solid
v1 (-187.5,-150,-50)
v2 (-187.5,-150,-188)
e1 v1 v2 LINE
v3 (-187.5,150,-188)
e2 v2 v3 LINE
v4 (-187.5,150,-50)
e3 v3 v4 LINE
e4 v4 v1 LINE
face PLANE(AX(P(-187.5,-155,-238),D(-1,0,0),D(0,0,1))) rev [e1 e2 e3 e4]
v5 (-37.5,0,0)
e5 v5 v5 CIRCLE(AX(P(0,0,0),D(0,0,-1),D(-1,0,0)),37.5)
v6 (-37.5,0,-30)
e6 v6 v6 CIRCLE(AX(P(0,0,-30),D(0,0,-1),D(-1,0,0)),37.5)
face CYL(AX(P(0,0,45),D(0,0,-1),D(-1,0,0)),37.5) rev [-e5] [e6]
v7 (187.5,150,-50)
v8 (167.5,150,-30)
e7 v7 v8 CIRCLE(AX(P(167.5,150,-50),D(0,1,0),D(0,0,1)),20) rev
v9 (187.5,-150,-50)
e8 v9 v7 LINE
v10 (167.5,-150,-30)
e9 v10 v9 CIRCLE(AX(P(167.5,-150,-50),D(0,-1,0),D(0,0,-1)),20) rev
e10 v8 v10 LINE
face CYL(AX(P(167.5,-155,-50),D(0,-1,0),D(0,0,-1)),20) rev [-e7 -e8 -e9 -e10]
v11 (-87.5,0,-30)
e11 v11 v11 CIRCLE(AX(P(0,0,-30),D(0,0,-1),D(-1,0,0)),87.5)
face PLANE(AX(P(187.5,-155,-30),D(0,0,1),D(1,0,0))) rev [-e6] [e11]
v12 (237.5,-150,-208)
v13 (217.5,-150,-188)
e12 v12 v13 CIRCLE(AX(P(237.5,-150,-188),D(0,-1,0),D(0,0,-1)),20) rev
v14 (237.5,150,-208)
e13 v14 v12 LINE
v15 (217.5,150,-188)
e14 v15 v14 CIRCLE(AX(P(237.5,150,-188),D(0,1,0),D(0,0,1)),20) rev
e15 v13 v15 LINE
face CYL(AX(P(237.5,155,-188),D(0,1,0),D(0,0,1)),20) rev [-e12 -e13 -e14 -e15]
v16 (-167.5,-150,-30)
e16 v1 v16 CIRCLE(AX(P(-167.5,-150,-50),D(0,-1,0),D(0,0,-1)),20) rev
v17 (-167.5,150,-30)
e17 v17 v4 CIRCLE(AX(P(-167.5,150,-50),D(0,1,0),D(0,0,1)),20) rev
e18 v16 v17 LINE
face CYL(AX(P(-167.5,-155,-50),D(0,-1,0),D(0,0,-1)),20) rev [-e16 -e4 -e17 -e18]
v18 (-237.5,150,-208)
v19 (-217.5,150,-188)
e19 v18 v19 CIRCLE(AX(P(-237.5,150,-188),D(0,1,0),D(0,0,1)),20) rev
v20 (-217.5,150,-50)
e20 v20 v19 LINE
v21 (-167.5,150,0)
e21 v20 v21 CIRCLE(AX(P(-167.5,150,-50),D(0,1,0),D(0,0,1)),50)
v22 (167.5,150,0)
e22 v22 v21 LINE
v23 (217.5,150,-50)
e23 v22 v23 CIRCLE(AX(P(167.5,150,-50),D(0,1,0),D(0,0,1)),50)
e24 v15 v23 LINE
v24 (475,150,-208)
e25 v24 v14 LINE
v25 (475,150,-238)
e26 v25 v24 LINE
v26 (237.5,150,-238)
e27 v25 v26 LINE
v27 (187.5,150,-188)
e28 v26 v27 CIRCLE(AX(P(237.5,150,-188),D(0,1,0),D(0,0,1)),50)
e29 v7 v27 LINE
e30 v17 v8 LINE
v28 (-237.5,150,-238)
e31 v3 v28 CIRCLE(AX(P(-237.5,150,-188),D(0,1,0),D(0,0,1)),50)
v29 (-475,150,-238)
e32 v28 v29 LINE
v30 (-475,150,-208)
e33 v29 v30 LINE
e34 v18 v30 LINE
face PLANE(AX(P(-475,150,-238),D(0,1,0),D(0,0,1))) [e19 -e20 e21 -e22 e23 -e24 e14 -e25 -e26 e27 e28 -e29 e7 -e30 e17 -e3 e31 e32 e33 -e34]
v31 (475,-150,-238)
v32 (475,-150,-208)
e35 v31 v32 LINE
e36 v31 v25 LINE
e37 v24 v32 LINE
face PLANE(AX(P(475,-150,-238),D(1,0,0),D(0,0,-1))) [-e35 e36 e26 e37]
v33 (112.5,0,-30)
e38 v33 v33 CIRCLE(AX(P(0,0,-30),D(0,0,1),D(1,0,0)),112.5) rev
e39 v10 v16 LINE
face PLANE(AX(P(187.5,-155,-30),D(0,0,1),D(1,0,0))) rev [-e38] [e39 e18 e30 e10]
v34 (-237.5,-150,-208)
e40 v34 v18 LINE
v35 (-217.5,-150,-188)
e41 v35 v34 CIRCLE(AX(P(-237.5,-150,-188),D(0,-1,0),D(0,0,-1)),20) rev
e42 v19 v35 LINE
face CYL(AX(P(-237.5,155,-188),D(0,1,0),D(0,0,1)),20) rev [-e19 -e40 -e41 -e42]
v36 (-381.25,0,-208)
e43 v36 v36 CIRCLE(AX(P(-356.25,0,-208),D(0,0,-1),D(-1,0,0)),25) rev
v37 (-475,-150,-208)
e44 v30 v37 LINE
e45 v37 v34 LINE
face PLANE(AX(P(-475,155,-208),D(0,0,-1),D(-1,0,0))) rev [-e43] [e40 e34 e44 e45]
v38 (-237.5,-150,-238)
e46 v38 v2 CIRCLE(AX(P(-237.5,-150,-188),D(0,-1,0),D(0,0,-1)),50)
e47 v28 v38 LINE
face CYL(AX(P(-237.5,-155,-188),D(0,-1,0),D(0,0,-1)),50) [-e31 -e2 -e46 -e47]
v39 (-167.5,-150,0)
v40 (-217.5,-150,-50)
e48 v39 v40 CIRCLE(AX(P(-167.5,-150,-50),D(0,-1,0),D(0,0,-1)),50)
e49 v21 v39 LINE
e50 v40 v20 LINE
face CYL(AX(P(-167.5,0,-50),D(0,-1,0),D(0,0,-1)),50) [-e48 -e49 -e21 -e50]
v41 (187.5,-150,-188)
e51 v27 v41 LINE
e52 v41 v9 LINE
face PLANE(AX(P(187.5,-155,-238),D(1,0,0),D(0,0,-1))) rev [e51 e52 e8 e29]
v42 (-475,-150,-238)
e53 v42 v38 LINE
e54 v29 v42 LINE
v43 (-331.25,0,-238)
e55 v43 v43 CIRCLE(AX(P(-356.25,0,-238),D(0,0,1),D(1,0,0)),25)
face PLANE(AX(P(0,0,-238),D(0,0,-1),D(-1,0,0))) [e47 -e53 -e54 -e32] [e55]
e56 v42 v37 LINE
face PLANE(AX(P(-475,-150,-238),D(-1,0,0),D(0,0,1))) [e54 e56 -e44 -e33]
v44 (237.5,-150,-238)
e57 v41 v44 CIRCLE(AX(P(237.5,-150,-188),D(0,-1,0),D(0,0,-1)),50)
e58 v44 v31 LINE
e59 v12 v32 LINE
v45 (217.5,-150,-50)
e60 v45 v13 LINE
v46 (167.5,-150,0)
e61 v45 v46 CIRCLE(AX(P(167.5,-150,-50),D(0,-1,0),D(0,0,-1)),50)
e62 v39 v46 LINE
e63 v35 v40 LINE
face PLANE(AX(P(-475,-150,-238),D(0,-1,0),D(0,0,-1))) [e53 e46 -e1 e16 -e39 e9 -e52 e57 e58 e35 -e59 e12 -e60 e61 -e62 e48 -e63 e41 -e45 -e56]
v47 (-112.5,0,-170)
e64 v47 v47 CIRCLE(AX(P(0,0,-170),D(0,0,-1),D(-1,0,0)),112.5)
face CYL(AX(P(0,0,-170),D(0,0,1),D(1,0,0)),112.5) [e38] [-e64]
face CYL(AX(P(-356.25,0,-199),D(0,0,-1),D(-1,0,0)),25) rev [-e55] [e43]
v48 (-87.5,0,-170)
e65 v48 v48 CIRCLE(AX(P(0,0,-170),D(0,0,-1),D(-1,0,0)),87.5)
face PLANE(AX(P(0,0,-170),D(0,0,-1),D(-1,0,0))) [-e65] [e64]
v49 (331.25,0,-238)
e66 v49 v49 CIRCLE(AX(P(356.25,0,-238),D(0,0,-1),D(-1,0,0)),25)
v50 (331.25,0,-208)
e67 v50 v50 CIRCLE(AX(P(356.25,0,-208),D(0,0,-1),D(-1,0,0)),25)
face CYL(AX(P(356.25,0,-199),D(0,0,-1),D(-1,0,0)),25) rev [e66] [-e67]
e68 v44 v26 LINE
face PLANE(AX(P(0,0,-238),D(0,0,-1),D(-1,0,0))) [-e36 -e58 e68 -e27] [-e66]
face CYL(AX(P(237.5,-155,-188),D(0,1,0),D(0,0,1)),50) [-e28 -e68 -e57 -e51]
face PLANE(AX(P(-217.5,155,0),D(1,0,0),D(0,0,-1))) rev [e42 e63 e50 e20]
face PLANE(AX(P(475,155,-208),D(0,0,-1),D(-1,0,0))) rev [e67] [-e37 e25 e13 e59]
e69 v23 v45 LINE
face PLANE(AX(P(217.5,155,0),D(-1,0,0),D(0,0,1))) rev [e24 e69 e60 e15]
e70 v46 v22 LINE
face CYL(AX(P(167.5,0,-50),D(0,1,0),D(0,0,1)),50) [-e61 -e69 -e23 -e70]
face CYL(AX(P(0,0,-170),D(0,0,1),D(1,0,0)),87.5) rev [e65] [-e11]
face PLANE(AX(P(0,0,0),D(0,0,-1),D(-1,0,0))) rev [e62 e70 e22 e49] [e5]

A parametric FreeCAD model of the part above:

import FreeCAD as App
import Part
import Sketcher
from FreeCAD import Vector
Q = App.Units.Quantity


def edges_at(feature, points):
    """Names of the edges that pass closest to the given points."""
    edges = feature.Shape.Edges
    near = lambda p: min(range(len(edges)), key=lambda i: edges[i].distToShape(Part.Vertex(*p))[0])
    return sorted({f"Edge{near(p) + 1}" for p in points})


def add_polygon(sketch, points):
    """Adds a closed chain of lines whose ends are joined by coincident constraints."""
    first, n = sketch.GeometryCount, len(points)
    for a, b in zip(points, points[1:] + points[:1]):
        sketch.addGeometry(Part.LineSegment(App.Vector(*a, 0), App.Vector(*b, 0)), False)
    for i in range(n):
        sketch.addConstraint(Sketcher.Constraint("Coincident", first + i, 2, first + (i + 1) % n, 1))

doc = App.newDocument("Part")
body = doc.addObject("PartDesign::Body", "Body")

# Sketch on XY plane
sketch1 = body.newObject("Sketcher::SketchObject", "Sketch")
sketch1.AttachmentSupport = (doc.getObject("XY_Plane"), [""])
sketch1.MapMode = "FlatFace"
add_polygon(sketch1, [(-475, 150), (-475, -150), (475, -150), (475, 150)])  # lines 0-3
sketch1.addConstraint([
    Sketcher.Constraint("Vertical", 0),
    Sketcher.Constraint("Horizontal", 1),
    Sketcher.Constraint("Vertical", 2),
    Sketcher.Constraint("Horizontal", 3),
    Sketcher.Constraint("Symmetric", 0, 2, 2, 2, -1, 1),
    Sketcher.Constraint("DistanceX", 1, 1, 1, 2, Q("950 mm")),
    Sketcher.Constraint("DistanceY", 0, 2, 0, 1, Q("300 mm")),
])
pad1 = body.newObject("PartDesign::Pad", "Pad")
pad1.Profile = sketch1
pad1.Length = 238
pad1.Reversed = True

# Sketch on XZ plane
sketch2 = body.newObject("Sketcher::SketchObject", "Sketch001")
sketch2.AttachmentSupport = (doc.getObject("XZ_Plane"), [""])
sketch2.MapMode = "FlatFace"
sketch2.AttachmentOffset = App.Placement(Vector(0, 0, -150), App.Rotation())
add_polygon(sketch2, [(-188, -238), (-188, -30), (188, -30), (188, -238)])  # lines 0-3
sketch2.addConstraint([
    Sketcher.Constraint("Vertical", 0),
    Sketcher.Constraint("Horizontal", 1),
    Sketcher.Constraint("Vertical", 2),
    Sketcher.Constraint("Horizontal", 3),
    Sketcher.Constraint("DistanceX", 1, 1, 1, 2, Q("375 mm")),
    Sketcher.Constraint("DistanceY", 0, 1, 0, 2, Q("208 mm")),
    Sketcher.Constraint("DistanceY", 0, 2, -1, 1, Q("30 mm")),
    Sketcher.Constraint("DistanceX", 0, 2, -1, 1, Q("187.5 mm")),
])
pocket1 = body.newObject("PartDesign::Pocket", "Pocket")
pocket1.Profile = sketch2
pocket1.Length = 305
pocket1.Reversed = True

# Sketch on XZ plane
sketch3 = body.newObject("Sketcher::SketchObject", "Sketch002")
sketch3.AttachmentSupport = (doc.getObject("XZ_Plane"), [""])
sketch3.MapMode = "FlatFace"
sketch3.AttachmentOffset = App.Placement(Vector(0, 0, 150), App.Rotation())
add_polygon(sketch3, [(218, 0), (218, -208), (475, -208), (475, 0)])  # lines 0-3
add_polygon(sketch3, [(-475, 0), (-475, -208), (-218, -208), (-218, 0)])  # lines 4-7
sketch3.addConstraint([
    Sketcher.Constraint("Vertical", 0),
    Sketcher.Constraint("Horizontal", 1),
    Sketcher.Constraint("Vertical", 2),
    Sketcher.Constraint("Horizontal", 3),
    Sketcher.Constraint("Vertical", 4),
    Sketcher.Constraint("Horizontal", 5),
    Sketcher.Constraint("Vertical", 6),
    Sketcher.Constraint("Horizontal", 7),
    Sketcher.Constraint("Symmetric", 3, 2, 6, 2, -1, 1),
    Sketcher.Constraint("Symmetric", 1, 2, 4, 2, -2),
    Sketcher.Constraint("PointOnObject", 2, 2, -1),
    Sketcher.Constraint("DistanceY", 0, 2, 0, 1, Q("208 mm")),
    Sketcher.Constraint("DistanceX", 1, 1, 1, 2, Q("257.5 mm")),
    Sketcher.Constraint("DistanceX", -1, 1, 1, 2, Q("475 mm")),
])
pocket2 = body.newObject("PartDesign::Pocket", "Pocket001")
pocket2.Profile = sketch3
pocket2.Length = 305
doc.recompute()

fillet = body.newObject("PartDesign::Fillet", "Fillet")
fillet.Base = (pocket2, edges_at(pocket2, [
    (187.5, 0, -30),
    (-187.5, 0, -30),
    (217.5, 0, -208),
    (-217.5, 0, -208),
]))
fillet.Radius = 20
doc.recompute()

fillet2 = body.newObject("PartDesign::Fillet", "Fillet001")
fillet2.Base = (fillet, edges_at(fillet, [
    (-187.5, 0, -238),
    (187.5, 0, -238),
    (217.5, 0, 0),
    (-217.5, 0, 0),
]))
fillet2.Radius = 50

# Sketch on XY plane
sketch4 = body.newObject("Sketcher::SketchObject", "Sketch003")
sketch4.AttachmentSupport = (doc.getObject("XY_Plane"), [""])
sketch4.MapMode = "FlatFace"
sketch4.AttachmentOffset = App.Placement(Vector(0, 0, -30), App.Rotation())
sketch4.addGeometry([
    Part.Circle(Vector(0, 0, 0), Vector(0, 0, 1), 112),
    Part.Circle(Vector(0, 0, 0), Vector(0, 0, 1), 88),
], False)
sketch4.addConstraint([
    Sketcher.Constraint("Coincident", 0, 3, -1, 1),
    Sketcher.Constraint("Coincident", 1, 3, -1, 1),
    Sketcher.Constraint("Diameter", 0, Q("225 mm")),
    Sketcher.Constraint("Diameter", 1, Q("175 mm")),
])
pad2 = body.newObject("PartDesign::Pad", "Pad001")
pad2.Profile = sketch4
pad2.Length = 140
pad2.Reversed = True

# Sketch on XY plane
sketch5 = body.newObject("Sketcher::SketchObject", "Sketch004")
sketch5.AttachmentSupport = (doc.getObject("XY_Plane"), [""])
sketch5.MapMode = "FlatFace"
sketch5.AttachmentOffset = App.Placement(Vector(0, 0, -30), App.Rotation())
sketch5.addGeometry(Part.Circle(Vector(0, 0, 0), Vector(0, 0, 1), 38), False)
sketch5.addConstraint([
    Sketcher.Constraint("Coincident", 0, 3, -1, 1),
    Sketcher.Constraint("Diameter", 0, Q("75 mm")),
])
pocket3 = body.newObject("PartDesign::Pocket", "Pocket002")
pocket3.Profile = sketch5
pocket3.Length = 75
pocket3.Reversed = True

# Sketch on XY plane
sketch6 = body.newObject("Sketcher::SketchObject", "Sketch005")
sketch6.AttachmentSupport = (doc.getObject("XY_Plane"), [""])
sketch6.MapMode = "FlatFace"
sketch6.AttachmentOffset = App.Placement(Vector(0, 0, -238), App.Rotation())
sketch6.addGeometry(Part.Circle(Vector(356, 0, 0), Vector(0, 0, 1), 25), False)
sketch6.addConstraint([
    Sketcher.Constraint("PointOnObject", 0, 3, -1),
    Sketcher.Constraint("Diameter", 0, Q("50 mm")),
    Sketcher.Constraint("DistanceX", -1, 1, 0, 3, Q("356.25 mm")),
])
pocket4 = body.newObject("PartDesign::Pocket", "Pocket003")
pocket4.Profile = sketch6
pocket4.Length = 39
pocket4.Reversed = True
doc.recompute()

mirrored = body.newObject("PartDesign::Mirrored", "Mirrored")
mirrored.Originals = [pocket4]
mirrored.MirrorPlane = (doc.getObject("YZ_Plane"), [""])
body.Tip = mirrored

doc.recompute()
